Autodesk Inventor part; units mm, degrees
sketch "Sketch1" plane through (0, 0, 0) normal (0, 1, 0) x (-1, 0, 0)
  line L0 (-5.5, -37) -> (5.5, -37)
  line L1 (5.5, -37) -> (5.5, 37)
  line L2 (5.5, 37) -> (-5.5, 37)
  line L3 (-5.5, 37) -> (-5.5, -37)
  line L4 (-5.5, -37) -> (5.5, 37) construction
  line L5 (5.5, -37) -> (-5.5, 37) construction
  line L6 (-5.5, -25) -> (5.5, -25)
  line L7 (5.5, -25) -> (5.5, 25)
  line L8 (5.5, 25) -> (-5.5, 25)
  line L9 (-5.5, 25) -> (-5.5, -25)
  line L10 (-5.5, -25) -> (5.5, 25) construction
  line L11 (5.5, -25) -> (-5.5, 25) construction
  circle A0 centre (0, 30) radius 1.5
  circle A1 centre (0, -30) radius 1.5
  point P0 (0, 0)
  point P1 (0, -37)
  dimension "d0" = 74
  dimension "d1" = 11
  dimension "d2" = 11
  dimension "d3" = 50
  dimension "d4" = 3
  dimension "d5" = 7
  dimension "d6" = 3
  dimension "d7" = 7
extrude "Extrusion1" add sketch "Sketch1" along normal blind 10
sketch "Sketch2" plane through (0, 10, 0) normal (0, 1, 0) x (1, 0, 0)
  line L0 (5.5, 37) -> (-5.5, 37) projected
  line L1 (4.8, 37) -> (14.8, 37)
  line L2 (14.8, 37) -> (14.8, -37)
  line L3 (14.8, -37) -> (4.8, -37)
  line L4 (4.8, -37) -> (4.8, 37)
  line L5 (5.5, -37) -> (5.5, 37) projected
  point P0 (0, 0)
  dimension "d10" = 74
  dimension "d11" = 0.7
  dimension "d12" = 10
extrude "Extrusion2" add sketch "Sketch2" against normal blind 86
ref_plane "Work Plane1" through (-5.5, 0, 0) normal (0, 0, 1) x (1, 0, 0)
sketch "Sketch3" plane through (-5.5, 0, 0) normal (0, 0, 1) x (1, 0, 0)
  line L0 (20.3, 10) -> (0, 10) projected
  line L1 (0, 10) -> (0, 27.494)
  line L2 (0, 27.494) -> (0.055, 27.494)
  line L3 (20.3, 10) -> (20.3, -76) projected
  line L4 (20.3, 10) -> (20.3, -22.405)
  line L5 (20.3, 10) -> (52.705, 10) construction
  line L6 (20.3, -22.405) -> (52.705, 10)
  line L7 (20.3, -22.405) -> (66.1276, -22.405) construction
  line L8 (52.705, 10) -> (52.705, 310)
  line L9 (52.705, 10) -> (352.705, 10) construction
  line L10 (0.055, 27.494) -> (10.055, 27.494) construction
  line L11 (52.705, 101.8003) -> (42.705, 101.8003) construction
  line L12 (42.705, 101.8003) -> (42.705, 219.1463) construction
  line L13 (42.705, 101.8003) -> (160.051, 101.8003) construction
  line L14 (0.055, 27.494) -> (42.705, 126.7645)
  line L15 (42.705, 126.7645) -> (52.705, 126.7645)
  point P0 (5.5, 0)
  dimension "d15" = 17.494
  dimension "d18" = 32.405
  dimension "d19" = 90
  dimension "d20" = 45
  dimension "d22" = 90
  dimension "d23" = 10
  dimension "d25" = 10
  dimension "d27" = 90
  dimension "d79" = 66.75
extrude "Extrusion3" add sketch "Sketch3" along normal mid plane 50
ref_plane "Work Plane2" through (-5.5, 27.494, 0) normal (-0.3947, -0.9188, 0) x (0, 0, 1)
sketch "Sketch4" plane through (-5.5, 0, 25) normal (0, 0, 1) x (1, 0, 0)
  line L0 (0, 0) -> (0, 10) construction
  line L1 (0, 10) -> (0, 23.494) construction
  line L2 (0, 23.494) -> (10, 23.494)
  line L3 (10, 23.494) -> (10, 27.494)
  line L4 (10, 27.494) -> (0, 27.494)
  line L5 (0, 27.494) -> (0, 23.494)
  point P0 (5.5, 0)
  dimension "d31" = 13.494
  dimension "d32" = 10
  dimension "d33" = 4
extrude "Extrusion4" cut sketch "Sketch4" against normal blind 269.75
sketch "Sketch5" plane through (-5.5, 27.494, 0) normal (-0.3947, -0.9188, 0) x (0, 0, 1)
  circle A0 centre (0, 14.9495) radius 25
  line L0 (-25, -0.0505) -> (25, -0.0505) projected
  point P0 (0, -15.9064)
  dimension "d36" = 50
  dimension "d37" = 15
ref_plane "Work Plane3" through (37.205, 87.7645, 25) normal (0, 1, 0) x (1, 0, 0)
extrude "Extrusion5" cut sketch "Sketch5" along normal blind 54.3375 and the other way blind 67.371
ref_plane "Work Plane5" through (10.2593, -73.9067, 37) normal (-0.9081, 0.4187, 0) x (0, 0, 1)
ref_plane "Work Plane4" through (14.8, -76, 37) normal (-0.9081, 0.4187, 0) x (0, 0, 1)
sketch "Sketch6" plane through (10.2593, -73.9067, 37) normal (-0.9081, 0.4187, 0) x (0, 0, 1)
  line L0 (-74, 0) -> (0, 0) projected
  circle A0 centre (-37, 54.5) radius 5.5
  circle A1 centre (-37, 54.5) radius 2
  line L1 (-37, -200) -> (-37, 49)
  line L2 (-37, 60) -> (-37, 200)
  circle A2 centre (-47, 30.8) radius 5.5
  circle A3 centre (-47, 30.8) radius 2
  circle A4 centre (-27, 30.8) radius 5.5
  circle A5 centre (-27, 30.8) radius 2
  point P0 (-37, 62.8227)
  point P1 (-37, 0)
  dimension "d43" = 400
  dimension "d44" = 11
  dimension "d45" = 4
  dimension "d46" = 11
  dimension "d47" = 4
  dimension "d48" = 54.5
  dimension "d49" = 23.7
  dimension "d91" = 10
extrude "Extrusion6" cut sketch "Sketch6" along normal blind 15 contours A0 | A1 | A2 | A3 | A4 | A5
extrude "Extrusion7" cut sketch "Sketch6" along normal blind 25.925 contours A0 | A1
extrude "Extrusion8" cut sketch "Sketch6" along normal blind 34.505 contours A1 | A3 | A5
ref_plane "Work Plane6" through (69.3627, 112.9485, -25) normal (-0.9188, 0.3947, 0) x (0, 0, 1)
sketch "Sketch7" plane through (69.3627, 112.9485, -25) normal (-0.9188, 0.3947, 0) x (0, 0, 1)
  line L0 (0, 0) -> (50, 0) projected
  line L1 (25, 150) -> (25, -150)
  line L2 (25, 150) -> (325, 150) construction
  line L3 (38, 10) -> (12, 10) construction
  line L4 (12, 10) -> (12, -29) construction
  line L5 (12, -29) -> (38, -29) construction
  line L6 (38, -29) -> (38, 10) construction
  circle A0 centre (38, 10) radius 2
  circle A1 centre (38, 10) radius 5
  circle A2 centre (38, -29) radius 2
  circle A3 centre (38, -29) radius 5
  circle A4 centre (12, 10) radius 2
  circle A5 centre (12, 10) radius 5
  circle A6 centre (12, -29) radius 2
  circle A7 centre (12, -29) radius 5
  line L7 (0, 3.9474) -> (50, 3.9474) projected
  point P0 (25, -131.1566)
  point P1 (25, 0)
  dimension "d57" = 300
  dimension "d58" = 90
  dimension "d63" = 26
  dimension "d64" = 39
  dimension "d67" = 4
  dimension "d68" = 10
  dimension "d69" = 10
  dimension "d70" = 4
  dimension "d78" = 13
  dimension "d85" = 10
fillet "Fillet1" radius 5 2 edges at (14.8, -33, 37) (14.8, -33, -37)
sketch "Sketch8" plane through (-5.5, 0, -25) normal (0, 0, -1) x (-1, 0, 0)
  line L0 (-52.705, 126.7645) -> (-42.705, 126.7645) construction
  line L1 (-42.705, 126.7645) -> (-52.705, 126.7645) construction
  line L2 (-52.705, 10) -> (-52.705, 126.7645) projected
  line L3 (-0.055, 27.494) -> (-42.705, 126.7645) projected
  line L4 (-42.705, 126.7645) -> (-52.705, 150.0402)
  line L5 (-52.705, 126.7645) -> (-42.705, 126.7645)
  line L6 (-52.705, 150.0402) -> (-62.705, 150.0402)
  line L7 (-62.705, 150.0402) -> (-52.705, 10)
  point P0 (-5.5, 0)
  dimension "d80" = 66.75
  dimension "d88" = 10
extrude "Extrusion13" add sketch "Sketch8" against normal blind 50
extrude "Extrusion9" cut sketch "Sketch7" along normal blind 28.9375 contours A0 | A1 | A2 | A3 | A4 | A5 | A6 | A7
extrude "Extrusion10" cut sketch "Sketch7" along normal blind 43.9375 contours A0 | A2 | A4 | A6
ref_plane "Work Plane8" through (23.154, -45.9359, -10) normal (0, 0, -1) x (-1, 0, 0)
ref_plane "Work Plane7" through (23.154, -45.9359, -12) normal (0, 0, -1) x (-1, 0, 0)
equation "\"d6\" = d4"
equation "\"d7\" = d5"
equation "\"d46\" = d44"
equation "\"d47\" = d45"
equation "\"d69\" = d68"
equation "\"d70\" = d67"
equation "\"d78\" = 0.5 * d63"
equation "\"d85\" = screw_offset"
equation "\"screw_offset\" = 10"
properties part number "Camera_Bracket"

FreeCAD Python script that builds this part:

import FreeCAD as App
import Part
import Sketcher
from FreeCAD import Vector
Q = App.Units.Quantity


def edges_at(feature, points):
    """Names of the edges that pass closest to the given points."""
    edges = feature.Shape.Edges
    near = lambda p: min(range(len(edges)), key=lambda i: edges[i].distToShape(Part.Vertex(*p))[0])
    return sorted({f"Edge{near(p) + 1}" for p in points})


def add_polygon(sketch, points):
    """Adds a closed chain of lines whose ends are joined by coincident constraints."""
    first, n = sketch.GeometryCount, len(points)
    for a, b in zip(points, points[1:] + points[:1]):
        sketch.addGeometry(Part.LineSegment(App.Vector(*a, 0), App.Vector(*b, 0)), False)
    for i in range(n):
        sketch.addConstraint(Sketcher.Constraint("Coincident", first + i, 2, first + (i + 1) % n, 1))

doc = App.newDocument("Part")
body = doc.addObject("PartDesign::Body", "Body")

sketch1 = body.newObject("Sketcher::SketchObject", "Sketch")
sketch1.AttachmentSupport = (doc.getObject("XZ_Plane"), [""])
sketch1.MapMode = "FlatFace"
add_polygon(sketch1, [(5.5, -37), (-5.5, -37), (-5.5, 37), (5.5, 37)])
sketch1.addGeometry(Part.Circle(Vector(0, -30, 0), Vector(0, 0, 1), 1.5), False)
sketch1.addGeometry(Part.Circle(Vector(0, 30, 0), Vector(0, 0, 1), 1.5), False)
sketch1.addConstraint(Sketcher.Constraint("Horizontal", 0))
sketch1.addConstraint(Sketcher.Constraint("Vertical", 1))
sketch1.addConstraint(Sketcher.Constraint("Horizontal", 2))
sketch1.addConstraint(Sketcher.Constraint("Vertical", 3))
sketch1.addConstraint(Sketcher.Constraint("Equal", 4, 5))
sketch1.addConstraint(Sketcher.Constraint("Symmetric", 4, 3, 5, 3, -1, 1))
sketch1.addConstraint(Sketcher.Constraint("Symmetric", 0, 2, 2, 2, -1, 1))
sketch1.addConstraint(Sketcher.Constraint("PointOnObject", 4, 3, -2))
sketch1.addConstraint(Sketcher.Constraint("Diameter", 4, Q("3 mm")))
sketch1.addConstraint(Sketcher.Constraint("DistanceX", 0, 2, 0, 1, Q("11 mm")))
sketch1.addConstraint(Sketcher.Constraint("DistanceY", 1, 1, 1, 2, Q("74 mm")))
sketch1.addConstraint(Sketcher.Constraint("DistanceY", 0, 2, 4, 3, Q("7 mm")))
pad1 = body.newObject("PartDesign::Pad", "Pad")
pad1.Profile = sketch1
pad1.Length = 10
pad1.Reversed = True

sketch2 = body.newObject("Sketcher::SketchObject", "Sketch001")
sketch2.AttachmentSupport = (doc.getObject("XZ_Plane"), [""])
sketch2.MapMode = "FlatFace"
sketch2.AttachmentOffset = App.Placement(Vector(0, 0, -10), App.Rotation())
add_polygon(sketch2, [(4.8, 37), (14.8, 37), (14.8, -37), (4.8, -37)])
sketch2.addConstraint(Sketcher.Constraint("Horizontal", 0))
sketch2.addConstraint(Sketcher.Constraint("Vertical", 1))
sketch2.addConstraint(Sketcher.Constraint("Horizontal", 2))
sketch2.addConstraint(Sketcher.Constraint("Vertical", 3))
sketch2.addConstraint(Sketcher.Constraint("DistanceX", 0, 1, 0, 2, Q("10 mm")))
sketch2.addConstraint(Sketcher.Constraint("DistanceY", 1, 2, 1, 1, Q("74 mm")))
sketch2.addConstraint(Sketcher.Constraint("DistanceY", -1, 1, 0, 2, Q("37 mm")))
sketch2.addConstraint(Sketcher.Constraint("DistanceX", -1, 1, 0, 2, Q("14.8 mm")))
pad2 = body.newObject("PartDesign::Pad", "Pad001")
pad2.Profile = sketch2
pad2.Length = 86

sketch3 = body.newObject("Sketcher::SketchObject", "Sketch002")
sketch3.AttachmentSupport = (doc.getObject("XY_Plane"), [""])
sketch3.MapMode = "FlatFace"
add_polygon(sketch3, [(-5.5, 10), (14.8, 10), (14.8, -22.405), (47.205, 10), (47.205, 126.7645), (37.205, 126.7645), (-5.445, 27.494), (-5.5, 27.494)])
sketch3.addConstraint(Sketcher.Constraint("Horizontal", 0))
sketch3.addConstraint(Sketcher.Constraint("Vertical", 1))
sketch3.addConstraint(Sketcher.Constraint("Vertical", 3))
sketch3.addConstraint(Sketcher.Constraint("Horizontal", 4))
sketch3.addConstraint(Sketcher.Constraint("Horizontal", 6))
sketch3.addConstraint(Sketcher.Constraint("Vertical", 7))
sketch3.addConstraint(Sketcher.Constraint("Horizontal", 0, 2, 2, 2))
sketch3.addConstraint(Sketcher.Constraint("DistanceX", 4, 2, 4, 1, Q("10 mm")))
sketch3.addConstraint(Sketcher.Constraint("Angle", 2, Q("45 deg")))
sketch3.addConstraint(Sketcher.Constraint("DistanceY", -1, 1, 0, 2, Q("10 mm")))
sketch3.addConstraint(Sketcher.Constraint("DistanceY", 1, 2, 1, 1, Q("32.405 mm")))
sketch3.addConstraint(Sketcher.Constraint("DistanceY", 7, 2, 7, 1, Q("17.494 mm")))
sketch3.addConstraint(Sketcher.Constraint("DistanceX", 0, 1, 0, 2, Q("20.3 mm")))
sketch3.addConstraint(Sketcher.Constraint("DistanceX", -1, 1, 0, 2, Q("14.8 mm")))
sketch3.addConstraint(Sketcher.Constraint("Angle", 5, Q("-113.25 deg")))
sketch3.addConstraint(Sketcher.Constraint("DistanceX", 6, 2, 6, 1, Q("0.055 mm")))
pad3 = body.newObject("PartDesign::Pad", "Pad002")
pad3.Profile = sketch3
pad3.Length = 50
pad3.Midplane = True

sketch4 = body.newObject("Sketcher::SketchObject", "Sketch003")
sketch4.AttachmentSupport = (doc.getObject("XY_Plane"), [""])
sketch4.MapMode = "FlatFace"
sketch4.AttachmentOffset = App.Placement(Vector(0, 0, 25), App.Rotation())
add_polygon(sketch4, [(-5.5, 27.494), (-5.5, 23.494), (4.5, 23.494), (4.5, 27.494)])
sketch4.addConstraint(Sketcher.Constraint("Vertical", 0))
sketch4.addConstraint(Sketcher.Constraint("Horizontal", 1))
sketch4.addConstraint(Sketcher.Constraint("Vertical", 2))
sketch4.addConstraint(Sketcher.Constraint("Horizontal", 3))
sketch4.addConstraint(Sketcher.Constraint("DistanceX", 1, 1, 1, 2, Q("10 mm")))
sketch4.addConstraint(Sketcher.Constraint("DistanceY", 0, 2, 0, 1, Q("4 mm")))
sketch4.addConstraint(Sketcher.Constraint("DistanceX", 0, 2, -1, 1, Q("5.5 mm")))
sketch4.addConstraint(Sketcher.Constraint("DistanceY", -1, 1, 0, 2, Q("23.494 mm")))
pocket1 = body.newObject("PartDesign::Pocket", "Pocket")
pocket1.Profile = sketch4
pocket1.Length = 269.75

sketch5 = body.newObject("Sketcher::SketchObject", "Sketch004")
sketch5.Placement = App.Placement(Vector(-5.5, 27.494, 0), App.Rotation(Vector(0, 0, 1), Vector(-0.918808485, 0.394703645, 0), Vector(-0.394703645, -0.918808485, 0), "ZXY"))
sketch5.addGeometry(Part.Circle(Vector(0, 14.9495, 0), Vector(0, 0, 1), 25), False)
sketch5.addConstraint(Sketcher.Constraint("PointOnObject", 0, 3, -2))
sketch5.addConstraint(Sketcher.Constraint("Diameter", 0, Q("50 mm")))
sketch5.addConstraint(Sketcher.Constraint("DistanceY", -1, 1, 0, 3, Q("14.9495 mm")))
pocket2 = body.newObject("PartDesign::Pocket", "Pocket001")
pocket2.Profile = sketch5
pocket2.Type = "TwoLengths"
pocket2.Length = 54.3375
pocket2.Length2 = 67.371
pocket2.Reversed = True

sketch6 = body.newObject("Sketcher::SketchObject", "Sketch005")
sketch6.Placement = App.Placement(Vector(10.2593, -73.9067, 37), App.Rotation(Vector(0, 0, 1), Vector(0.418709358, 0.908120297, 0), Vector(-0.908120297, 0.418709358, 0), "ZXY"))
sketch6.addGeometry(Part.Circle(Vector(-37, 54.5, 0), Vector(0, 0, 1), 5.5), False)
sketch6.addGeometry(Part.Circle(Vector(-47, 30.8, 0), Vector(0, 0, 1), 5.5), False)
sketch6.addGeometry(Part.Circle(Vector(-27, 30.8, 0), Vector(0, 0, 1), 5.5), False)
sketch6.addConstraint(Sketcher.Constraint("Equal", 0, 1))
sketch6.addConstraint(Sketcher.Constraint("Equal", 1, 2))
sketch6.addConstraint(Sketcher.Constraint("Horizontal", 1, 3, 2, 3))
sketch6.addConstraint(Sketcher.Constraint("Diameter", 0, Q("11 mm")))
sketch6.addConstraint(Sketcher.Constraint("DistanceX", 1, 3, 0, 3, Q("10 mm")))
sketch6.addConstraint(Sketcher.Constraint("DistanceX", 0, 3, 2, 3, Q("10 mm")))
sketch6.addConstraint(Sketcher.Constraint("DistanceY", -1, 1, 0, 3, Q("54.5 mm")))
sketch6.addConstraint(Sketcher.Constraint("DistanceY", 1, 3, 0, 3, Q("23.7 mm")))
sketch6.addConstraint(Sketcher.Constraint("DistanceX", 0, 3, -1, 1, Q("37 mm")))
pocket3 = body.newObject("PartDesign::Pocket", "Pocket002")
pocket3.Profile = sketch6
pocket3.Length = 15
pocket3.Reversed = True

sketch7 = body.newObject("Sketcher::SketchObject", "Sketch006")
sketch7.Placement = App.Placement(Vector(10.2593, -73.9067, 37), App.Rotation(Vector(0, 0, 1), Vector(0.418709358, 0.908120297, 0), Vector(-0.908120297, 0.418709358, 0), "ZXY"))
sketch7.addGeometry(Part.Circle(Vector(-37, 54.5, 0), Vector(0, 0, 1), 5.5), False)
sketch7.addConstraint(Sketcher.Constraint("Diameter", 0, Q("11 mm")))
sketch7.addConstraint(Sketcher.Constraint("DistanceY", -1, 1, 0, 3, Q("54.5 mm")))
sketch7.addConstraint(Sketcher.Constraint("DistanceX", 0, 3, -1, 1, Q("37 mm")))
pocket4 = body.newObject("PartDesign::Pocket", "Pocket003")
pocket4.Profile = sketch7
pocket4.Length = 25.925
pocket4.Reversed = True

sketch8 = body.newObject("Sketcher::SketchObject", "Sketch007")
sketch8.Placement = App.Placement(Vector(10.2593, -73.9067, 37), App.Rotation(Vector(0, 0, 1), Vector(0.418709358, 0.908120297, 0), Vector(-0.908120297, 0.418709358, 0), "ZXY"))
sketch8.addGeometry(Part.Circle(Vector(-37, 54.5, 0), Vector(0, 0, 1), 2), False)
sketch8.addGeometry(Part.Circle(Vector(-47, 30.8, 0), Vector(0, 0, 1), 2), False)
sketch8.addGeometry(Part.Circle(Vector(-27, 30.8, 0), Vector(0, 0, 1), 2), False)
sketch8.addConstraint(Sketcher.Constraint("Equal", 0, 1))
sketch8.addConstraint(Sketcher.Constraint("Equal", 1, 2))
sketch8.addConstraint(Sketcher.Constraint("Horizontal", 1, 3, 2, 3))
sketch8.addConstraint(Sketcher.Constraint("Diameter", 0, Q("4 mm")))
sketch8.addConstraint(Sketcher.Constraint("DistanceX", 1, 3, 0, 3, Q("10 mm")))
sketch8.addConstraint(Sketcher.Constraint("DistanceX", 0, 3, 2, 3, Q("10 mm")))
sketch8.addConstraint(Sketcher.Constraint("DistanceY", -1, 1, 0, 3, Q("54.5 mm")))
sketch8.addConstraint(Sketcher.Constraint("DistanceY", 1, 3, 0, 3, Q("23.7 mm")))
sketch8.addConstraint(Sketcher.Constraint("DistanceX", 0, 3, -1, 1, Q("37 mm")))
pocket5 = body.newObject("PartDesign::Pocket", "Pocket004")
pocket5.Profile = sketch8
pocket5.Length = 34.505
pocket5.Reversed = True
doc.recompute()

fillet = body.newObject("PartDesign::Fillet", "Fillet")
fillet.Base = (pocket5, edges_at(pocket5, [(14.8, -33, 37), (14.8, -33, -37)]))
fillet.Radius = 5

sketch9 = body.newObject("Sketcher::SketchObject", "Sketch008")
sketch9.AttachmentSupport = (doc.getObject("XY_Plane"), [""])
sketch9.MapMode = "FlatFace"
sketch9.AttachmentOffset = App.Placement(Vector(0, 0, -25), App.Rotation())
add_polygon(sketch9, [(57.205, 150.0402), (47.205, 10), (47.205, 126.7645), (37.205, 126.7645), (47.205, 150.0402)])
sketch9.addConstraint(Sketcher.Constraint("Vertical", 1))
sketch9.addConstraint(Sketcher.Constraint("Horizontal", 2))
sketch9.addConstraint(Sketcher.Constraint("Horizontal", 4))
sketch9.addConstraint(Sketcher.Constraint("Vertical", 1, 2, 3, 2))
sketch9.addConstraint(Sketcher.Constraint("Equal", 2, 4))
sketch9.addConstraint(Sketcher.Constraint("DistanceX", 2, 2, 2, 1, Q("10 mm")))
sketch9.addConstraint(Sketcher.Constraint("DistanceY", -1, 1, 0, 2, Q("10 mm")))
sketch9.addConstraint(Sketcher.Constraint("Angle", 3, Q("66.75 deg")))
sketch9.addConstraint(Sketcher.Constraint("DistanceY", 1, 1, 1, 2, Q("116.7645 mm")))
sketch9.addConstraint(Sketcher.Constraint("DistanceX", -1, 1, 0, 2, Q("47.205 mm")))
pad4 = body.newObject("PartDesign::Pad", "Pad003")
pad4.Profile = sketch9
pad4.Length = 50

sketch10 = body.newObject("Sketcher::SketchObject", "Sketch009")
sketch10.Placement = App.Placement(Vector(69.3627, 112.9485, -25), App.Rotation(Vector(0, 0, 1), Vector(0.394703645, 0.918808485, 0), Vector(-0.918808485, 0.394703645, 0), "ZXY"))
sketch10.addGeometry(Part.Circle(Vector(38, 10, 0), Vector(0, 0, 1), 5), False)
sketch10.addGeometry(Part.Circle(Vector(38, -29, 0), Vector(0, 0, 1), 5), False)
sketch10.addGeometry(Part.Circle(Vector(12, 10, 0), Vector(0, 0, 1), 5), False)
sketch10.addGeometry(Part.Circle(Vector(12, -29, 0), Vector(0, 0, 1), 5), False)
sketch10.addConstraint(Sketcher.Constraint("Equal", 0, 1))
sketch10.addConstraint(Sketcher.Constraint("Equal", 1, 2))
sketch10.addConstraint(Sketcher.Constraint("Equal", 2, 3))
sketch10.addConstraint(Sketcher.Constraint("Horizontal", 0, 3, 2, 3))
sketch10.addConstraint(Sketcher.Constraint("Horizontal", 1, 3, 3, 3))
sketch10.addConstraint(Sketcher.Constraint("Vertical", 0, 3, 1, 3))
sketch10.addConstraint(Sketcher.Constraint("Vertical", 2, 3, 3, 3))
sketch10.addConstraint(Sketcher.Constraint("Diameter", 0, Q("10 mm")))
sketch10.addConstraint(Sketcher.Constraint("DistanceY", -1, 1, 0, 3, Q("10 mm")))
sketch10.addConstraint(Sketcher.Constraint("DistanceY", 1, 3, 0, 3, Q("39 mm")))
sketch10.addConstraint(Sketcher.Constraint("DistanceX", 2, 3, 0, 3, Q("26 mm")))
sketch10.addConstraint(Sketcher.Constraint("DistanceX", -1, 1, 0, 3, Q("38 mm")))
pocket6 = body.newObject("PartDesign::Pocket", "Pocket005")
pocket6.Profile = sketch10
pocket6.Length = 28.9375
pocket6.Reversed = True

sketch11 = body.newObject("Sketcher::SketchObject", "Sketch010")
sketch11.Placement = App.Placement(Vector(69.3627, 112.9485, -25), App.Rotation(Vector(0, 0, 1), Vector(0.394703645, 0.918808485, 0), Vector(-0.918808485, 0.394703645, 0), "ZXY"))
sketch11.addGeometry(Part.Circle(Vector(38, 10, 0), Vector(0, 0, 1), 2), False)
sketch11.addGeometry(Part.Circle(Vector(38, -29, 0), Vector(0, 0, 1), 2), False)
sketch11.addGeometry(Part.Circle(Vector(12, 10, 0), Vector(0, 0, 1), 2), False)
sketch11.addGeometry(Part.Circle(Vector(12, -29, 0), Vector(0, 0, 1), 2), False)
sketch11.addConstraint(Sketcher.Constraint("Equal", 0, 1))
sketch11.addConstraint(Sketcher.Constraint("Equal", 1, 2))
sketch11.addConstraint(Sketcher.Constraint("Equal", 2, 3))
sketch11.addConstraint(Sketcher.Constraint("Horizontal", 0, 3, 2, 3))
sketch11.addConstraint(Sketcher.Constraint("Horizontal", 1, 3, 3, 3))
sketch11.addConstraint(Sketcher.Constraint("Vertical", 0, 3, 1, 3))
sketch11.addConstraint(Sketcher.Constraint("Vertical", 2, 3, 3, 3))
sketch11.addConstraint(Sketcher.Constraint("Diameter", 0, Q("4 mm")))
sketch11.addConstraint(Sketcher.Constraint("DistanceY", -1, 1, 0, 3, Q("10 mm")))
sketch11.addConstraint(Sketcher.Constraint("DistanceY", 1, 3, 0, 3, Q("39 mm")))
sketch11.addConstraint(Sketcher.Constraint("DistanceX", 2, 3, 0, 3, Q("26 mm")))
sketch11.addConstraint(Sketcher.Constraint("DistanceX", -1, 1, 0, 3, Q("38 mm")))
pocket7 = body.newObject("PartDesign::Pocket", "Pocket006")
pocket7.Profile = sketch11
pocket7.Length = 43.9375
pocket7.Reversed = True

doc.recompute()
